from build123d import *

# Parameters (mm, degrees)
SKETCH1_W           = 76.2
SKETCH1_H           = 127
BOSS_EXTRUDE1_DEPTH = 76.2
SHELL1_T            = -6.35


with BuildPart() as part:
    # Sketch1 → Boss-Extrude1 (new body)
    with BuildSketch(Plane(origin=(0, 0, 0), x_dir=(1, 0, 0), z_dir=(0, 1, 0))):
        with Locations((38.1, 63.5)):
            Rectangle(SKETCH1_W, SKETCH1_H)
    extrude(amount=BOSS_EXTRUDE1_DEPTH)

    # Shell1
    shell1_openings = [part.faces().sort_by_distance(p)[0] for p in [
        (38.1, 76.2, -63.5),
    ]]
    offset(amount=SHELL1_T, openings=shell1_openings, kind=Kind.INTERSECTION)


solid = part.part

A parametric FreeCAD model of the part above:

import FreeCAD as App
import Part
import Sketcher

V = App.Vector
Q = App.Units.Quantity


def faces_at(feature, points):
    """Names of the faces that lie closest to the given points."""
    faces = feature.Shape.Faces
    near = lambda p: min(range(len(faces)), key=lambda i: faces[i].distToShape(Part.Vertex(*p))[0])
    return sorted({f"Face{near(p) + 1}" for p in points})

doc = App.newDocument("Part")
body = doc.addObject("PartDesign::Body", "Body")

# Sketch on XZ plane
sketch1 = body.newObject("Sketcher::SketchObject", "Sketch")
sketch1.AttachmentSupport = (doc.getObject("XZ_Plane"), [""])
sketch1.MapMode = "FlatFace"
sketch1.addGeometry([
    Part.LineSegment(V(0, -127, 0), V(0, 0, 0)),
    Part.LineSegment(V(0, 0, 0), V(76, 0, 0)),
    Part.LineSegment(V(76, 0, 0), V(76, -127, 0)),
    Part.LineSegment(V(76, -127, 0), V(0, -127, 0)),
], False)
sketch1.addConstraint([
    Sketcher.Constraint("Coincident", 0, 2, 1, 1),
    Sketcher.Constraint("Coincident", 1, 2, 2, 1),
    Sketcher.Constraint("Coincident", 2, 2, 3, 1),
    Sketcher.Constraint("Coincident", 3, 2, 0, 1),
    Sketcher.Constraint("Vertical", 0),
    Sketcher.Constraint("Horizontal", 1),
    Sketcher.Constraint("Vertical", 2),
    Sketcher.Constraint("Horizontal", 3),
    Sketcher.Constraint("Coincident", 0, 2, -1, 1),
    Sketcher.Constraint("DistanceX", 1, 1, 1, 2, Q("3 in")),
    Sketcher.Constraint("DistanceY", 0, 1, 0, 2, Q("5 in")),
])
pad1 = body.newObject("PartDesign::Pad", "Pad")
pad1.Profile = sketch1
pad1.Length = Q("3 in")
pad1.Reversed = True
doc.recompute()

thickness = body.newObject("PartDesign::Thickness", "Thickness")
thickness.Base = (pad1, faces_at(pad1, [(38.1, 76.2, -63.5)]))
thickness.Value = Q("0.25 in")
thickness.Reversed = True
thickness.Join = "Intersection"

doc.recompute()
